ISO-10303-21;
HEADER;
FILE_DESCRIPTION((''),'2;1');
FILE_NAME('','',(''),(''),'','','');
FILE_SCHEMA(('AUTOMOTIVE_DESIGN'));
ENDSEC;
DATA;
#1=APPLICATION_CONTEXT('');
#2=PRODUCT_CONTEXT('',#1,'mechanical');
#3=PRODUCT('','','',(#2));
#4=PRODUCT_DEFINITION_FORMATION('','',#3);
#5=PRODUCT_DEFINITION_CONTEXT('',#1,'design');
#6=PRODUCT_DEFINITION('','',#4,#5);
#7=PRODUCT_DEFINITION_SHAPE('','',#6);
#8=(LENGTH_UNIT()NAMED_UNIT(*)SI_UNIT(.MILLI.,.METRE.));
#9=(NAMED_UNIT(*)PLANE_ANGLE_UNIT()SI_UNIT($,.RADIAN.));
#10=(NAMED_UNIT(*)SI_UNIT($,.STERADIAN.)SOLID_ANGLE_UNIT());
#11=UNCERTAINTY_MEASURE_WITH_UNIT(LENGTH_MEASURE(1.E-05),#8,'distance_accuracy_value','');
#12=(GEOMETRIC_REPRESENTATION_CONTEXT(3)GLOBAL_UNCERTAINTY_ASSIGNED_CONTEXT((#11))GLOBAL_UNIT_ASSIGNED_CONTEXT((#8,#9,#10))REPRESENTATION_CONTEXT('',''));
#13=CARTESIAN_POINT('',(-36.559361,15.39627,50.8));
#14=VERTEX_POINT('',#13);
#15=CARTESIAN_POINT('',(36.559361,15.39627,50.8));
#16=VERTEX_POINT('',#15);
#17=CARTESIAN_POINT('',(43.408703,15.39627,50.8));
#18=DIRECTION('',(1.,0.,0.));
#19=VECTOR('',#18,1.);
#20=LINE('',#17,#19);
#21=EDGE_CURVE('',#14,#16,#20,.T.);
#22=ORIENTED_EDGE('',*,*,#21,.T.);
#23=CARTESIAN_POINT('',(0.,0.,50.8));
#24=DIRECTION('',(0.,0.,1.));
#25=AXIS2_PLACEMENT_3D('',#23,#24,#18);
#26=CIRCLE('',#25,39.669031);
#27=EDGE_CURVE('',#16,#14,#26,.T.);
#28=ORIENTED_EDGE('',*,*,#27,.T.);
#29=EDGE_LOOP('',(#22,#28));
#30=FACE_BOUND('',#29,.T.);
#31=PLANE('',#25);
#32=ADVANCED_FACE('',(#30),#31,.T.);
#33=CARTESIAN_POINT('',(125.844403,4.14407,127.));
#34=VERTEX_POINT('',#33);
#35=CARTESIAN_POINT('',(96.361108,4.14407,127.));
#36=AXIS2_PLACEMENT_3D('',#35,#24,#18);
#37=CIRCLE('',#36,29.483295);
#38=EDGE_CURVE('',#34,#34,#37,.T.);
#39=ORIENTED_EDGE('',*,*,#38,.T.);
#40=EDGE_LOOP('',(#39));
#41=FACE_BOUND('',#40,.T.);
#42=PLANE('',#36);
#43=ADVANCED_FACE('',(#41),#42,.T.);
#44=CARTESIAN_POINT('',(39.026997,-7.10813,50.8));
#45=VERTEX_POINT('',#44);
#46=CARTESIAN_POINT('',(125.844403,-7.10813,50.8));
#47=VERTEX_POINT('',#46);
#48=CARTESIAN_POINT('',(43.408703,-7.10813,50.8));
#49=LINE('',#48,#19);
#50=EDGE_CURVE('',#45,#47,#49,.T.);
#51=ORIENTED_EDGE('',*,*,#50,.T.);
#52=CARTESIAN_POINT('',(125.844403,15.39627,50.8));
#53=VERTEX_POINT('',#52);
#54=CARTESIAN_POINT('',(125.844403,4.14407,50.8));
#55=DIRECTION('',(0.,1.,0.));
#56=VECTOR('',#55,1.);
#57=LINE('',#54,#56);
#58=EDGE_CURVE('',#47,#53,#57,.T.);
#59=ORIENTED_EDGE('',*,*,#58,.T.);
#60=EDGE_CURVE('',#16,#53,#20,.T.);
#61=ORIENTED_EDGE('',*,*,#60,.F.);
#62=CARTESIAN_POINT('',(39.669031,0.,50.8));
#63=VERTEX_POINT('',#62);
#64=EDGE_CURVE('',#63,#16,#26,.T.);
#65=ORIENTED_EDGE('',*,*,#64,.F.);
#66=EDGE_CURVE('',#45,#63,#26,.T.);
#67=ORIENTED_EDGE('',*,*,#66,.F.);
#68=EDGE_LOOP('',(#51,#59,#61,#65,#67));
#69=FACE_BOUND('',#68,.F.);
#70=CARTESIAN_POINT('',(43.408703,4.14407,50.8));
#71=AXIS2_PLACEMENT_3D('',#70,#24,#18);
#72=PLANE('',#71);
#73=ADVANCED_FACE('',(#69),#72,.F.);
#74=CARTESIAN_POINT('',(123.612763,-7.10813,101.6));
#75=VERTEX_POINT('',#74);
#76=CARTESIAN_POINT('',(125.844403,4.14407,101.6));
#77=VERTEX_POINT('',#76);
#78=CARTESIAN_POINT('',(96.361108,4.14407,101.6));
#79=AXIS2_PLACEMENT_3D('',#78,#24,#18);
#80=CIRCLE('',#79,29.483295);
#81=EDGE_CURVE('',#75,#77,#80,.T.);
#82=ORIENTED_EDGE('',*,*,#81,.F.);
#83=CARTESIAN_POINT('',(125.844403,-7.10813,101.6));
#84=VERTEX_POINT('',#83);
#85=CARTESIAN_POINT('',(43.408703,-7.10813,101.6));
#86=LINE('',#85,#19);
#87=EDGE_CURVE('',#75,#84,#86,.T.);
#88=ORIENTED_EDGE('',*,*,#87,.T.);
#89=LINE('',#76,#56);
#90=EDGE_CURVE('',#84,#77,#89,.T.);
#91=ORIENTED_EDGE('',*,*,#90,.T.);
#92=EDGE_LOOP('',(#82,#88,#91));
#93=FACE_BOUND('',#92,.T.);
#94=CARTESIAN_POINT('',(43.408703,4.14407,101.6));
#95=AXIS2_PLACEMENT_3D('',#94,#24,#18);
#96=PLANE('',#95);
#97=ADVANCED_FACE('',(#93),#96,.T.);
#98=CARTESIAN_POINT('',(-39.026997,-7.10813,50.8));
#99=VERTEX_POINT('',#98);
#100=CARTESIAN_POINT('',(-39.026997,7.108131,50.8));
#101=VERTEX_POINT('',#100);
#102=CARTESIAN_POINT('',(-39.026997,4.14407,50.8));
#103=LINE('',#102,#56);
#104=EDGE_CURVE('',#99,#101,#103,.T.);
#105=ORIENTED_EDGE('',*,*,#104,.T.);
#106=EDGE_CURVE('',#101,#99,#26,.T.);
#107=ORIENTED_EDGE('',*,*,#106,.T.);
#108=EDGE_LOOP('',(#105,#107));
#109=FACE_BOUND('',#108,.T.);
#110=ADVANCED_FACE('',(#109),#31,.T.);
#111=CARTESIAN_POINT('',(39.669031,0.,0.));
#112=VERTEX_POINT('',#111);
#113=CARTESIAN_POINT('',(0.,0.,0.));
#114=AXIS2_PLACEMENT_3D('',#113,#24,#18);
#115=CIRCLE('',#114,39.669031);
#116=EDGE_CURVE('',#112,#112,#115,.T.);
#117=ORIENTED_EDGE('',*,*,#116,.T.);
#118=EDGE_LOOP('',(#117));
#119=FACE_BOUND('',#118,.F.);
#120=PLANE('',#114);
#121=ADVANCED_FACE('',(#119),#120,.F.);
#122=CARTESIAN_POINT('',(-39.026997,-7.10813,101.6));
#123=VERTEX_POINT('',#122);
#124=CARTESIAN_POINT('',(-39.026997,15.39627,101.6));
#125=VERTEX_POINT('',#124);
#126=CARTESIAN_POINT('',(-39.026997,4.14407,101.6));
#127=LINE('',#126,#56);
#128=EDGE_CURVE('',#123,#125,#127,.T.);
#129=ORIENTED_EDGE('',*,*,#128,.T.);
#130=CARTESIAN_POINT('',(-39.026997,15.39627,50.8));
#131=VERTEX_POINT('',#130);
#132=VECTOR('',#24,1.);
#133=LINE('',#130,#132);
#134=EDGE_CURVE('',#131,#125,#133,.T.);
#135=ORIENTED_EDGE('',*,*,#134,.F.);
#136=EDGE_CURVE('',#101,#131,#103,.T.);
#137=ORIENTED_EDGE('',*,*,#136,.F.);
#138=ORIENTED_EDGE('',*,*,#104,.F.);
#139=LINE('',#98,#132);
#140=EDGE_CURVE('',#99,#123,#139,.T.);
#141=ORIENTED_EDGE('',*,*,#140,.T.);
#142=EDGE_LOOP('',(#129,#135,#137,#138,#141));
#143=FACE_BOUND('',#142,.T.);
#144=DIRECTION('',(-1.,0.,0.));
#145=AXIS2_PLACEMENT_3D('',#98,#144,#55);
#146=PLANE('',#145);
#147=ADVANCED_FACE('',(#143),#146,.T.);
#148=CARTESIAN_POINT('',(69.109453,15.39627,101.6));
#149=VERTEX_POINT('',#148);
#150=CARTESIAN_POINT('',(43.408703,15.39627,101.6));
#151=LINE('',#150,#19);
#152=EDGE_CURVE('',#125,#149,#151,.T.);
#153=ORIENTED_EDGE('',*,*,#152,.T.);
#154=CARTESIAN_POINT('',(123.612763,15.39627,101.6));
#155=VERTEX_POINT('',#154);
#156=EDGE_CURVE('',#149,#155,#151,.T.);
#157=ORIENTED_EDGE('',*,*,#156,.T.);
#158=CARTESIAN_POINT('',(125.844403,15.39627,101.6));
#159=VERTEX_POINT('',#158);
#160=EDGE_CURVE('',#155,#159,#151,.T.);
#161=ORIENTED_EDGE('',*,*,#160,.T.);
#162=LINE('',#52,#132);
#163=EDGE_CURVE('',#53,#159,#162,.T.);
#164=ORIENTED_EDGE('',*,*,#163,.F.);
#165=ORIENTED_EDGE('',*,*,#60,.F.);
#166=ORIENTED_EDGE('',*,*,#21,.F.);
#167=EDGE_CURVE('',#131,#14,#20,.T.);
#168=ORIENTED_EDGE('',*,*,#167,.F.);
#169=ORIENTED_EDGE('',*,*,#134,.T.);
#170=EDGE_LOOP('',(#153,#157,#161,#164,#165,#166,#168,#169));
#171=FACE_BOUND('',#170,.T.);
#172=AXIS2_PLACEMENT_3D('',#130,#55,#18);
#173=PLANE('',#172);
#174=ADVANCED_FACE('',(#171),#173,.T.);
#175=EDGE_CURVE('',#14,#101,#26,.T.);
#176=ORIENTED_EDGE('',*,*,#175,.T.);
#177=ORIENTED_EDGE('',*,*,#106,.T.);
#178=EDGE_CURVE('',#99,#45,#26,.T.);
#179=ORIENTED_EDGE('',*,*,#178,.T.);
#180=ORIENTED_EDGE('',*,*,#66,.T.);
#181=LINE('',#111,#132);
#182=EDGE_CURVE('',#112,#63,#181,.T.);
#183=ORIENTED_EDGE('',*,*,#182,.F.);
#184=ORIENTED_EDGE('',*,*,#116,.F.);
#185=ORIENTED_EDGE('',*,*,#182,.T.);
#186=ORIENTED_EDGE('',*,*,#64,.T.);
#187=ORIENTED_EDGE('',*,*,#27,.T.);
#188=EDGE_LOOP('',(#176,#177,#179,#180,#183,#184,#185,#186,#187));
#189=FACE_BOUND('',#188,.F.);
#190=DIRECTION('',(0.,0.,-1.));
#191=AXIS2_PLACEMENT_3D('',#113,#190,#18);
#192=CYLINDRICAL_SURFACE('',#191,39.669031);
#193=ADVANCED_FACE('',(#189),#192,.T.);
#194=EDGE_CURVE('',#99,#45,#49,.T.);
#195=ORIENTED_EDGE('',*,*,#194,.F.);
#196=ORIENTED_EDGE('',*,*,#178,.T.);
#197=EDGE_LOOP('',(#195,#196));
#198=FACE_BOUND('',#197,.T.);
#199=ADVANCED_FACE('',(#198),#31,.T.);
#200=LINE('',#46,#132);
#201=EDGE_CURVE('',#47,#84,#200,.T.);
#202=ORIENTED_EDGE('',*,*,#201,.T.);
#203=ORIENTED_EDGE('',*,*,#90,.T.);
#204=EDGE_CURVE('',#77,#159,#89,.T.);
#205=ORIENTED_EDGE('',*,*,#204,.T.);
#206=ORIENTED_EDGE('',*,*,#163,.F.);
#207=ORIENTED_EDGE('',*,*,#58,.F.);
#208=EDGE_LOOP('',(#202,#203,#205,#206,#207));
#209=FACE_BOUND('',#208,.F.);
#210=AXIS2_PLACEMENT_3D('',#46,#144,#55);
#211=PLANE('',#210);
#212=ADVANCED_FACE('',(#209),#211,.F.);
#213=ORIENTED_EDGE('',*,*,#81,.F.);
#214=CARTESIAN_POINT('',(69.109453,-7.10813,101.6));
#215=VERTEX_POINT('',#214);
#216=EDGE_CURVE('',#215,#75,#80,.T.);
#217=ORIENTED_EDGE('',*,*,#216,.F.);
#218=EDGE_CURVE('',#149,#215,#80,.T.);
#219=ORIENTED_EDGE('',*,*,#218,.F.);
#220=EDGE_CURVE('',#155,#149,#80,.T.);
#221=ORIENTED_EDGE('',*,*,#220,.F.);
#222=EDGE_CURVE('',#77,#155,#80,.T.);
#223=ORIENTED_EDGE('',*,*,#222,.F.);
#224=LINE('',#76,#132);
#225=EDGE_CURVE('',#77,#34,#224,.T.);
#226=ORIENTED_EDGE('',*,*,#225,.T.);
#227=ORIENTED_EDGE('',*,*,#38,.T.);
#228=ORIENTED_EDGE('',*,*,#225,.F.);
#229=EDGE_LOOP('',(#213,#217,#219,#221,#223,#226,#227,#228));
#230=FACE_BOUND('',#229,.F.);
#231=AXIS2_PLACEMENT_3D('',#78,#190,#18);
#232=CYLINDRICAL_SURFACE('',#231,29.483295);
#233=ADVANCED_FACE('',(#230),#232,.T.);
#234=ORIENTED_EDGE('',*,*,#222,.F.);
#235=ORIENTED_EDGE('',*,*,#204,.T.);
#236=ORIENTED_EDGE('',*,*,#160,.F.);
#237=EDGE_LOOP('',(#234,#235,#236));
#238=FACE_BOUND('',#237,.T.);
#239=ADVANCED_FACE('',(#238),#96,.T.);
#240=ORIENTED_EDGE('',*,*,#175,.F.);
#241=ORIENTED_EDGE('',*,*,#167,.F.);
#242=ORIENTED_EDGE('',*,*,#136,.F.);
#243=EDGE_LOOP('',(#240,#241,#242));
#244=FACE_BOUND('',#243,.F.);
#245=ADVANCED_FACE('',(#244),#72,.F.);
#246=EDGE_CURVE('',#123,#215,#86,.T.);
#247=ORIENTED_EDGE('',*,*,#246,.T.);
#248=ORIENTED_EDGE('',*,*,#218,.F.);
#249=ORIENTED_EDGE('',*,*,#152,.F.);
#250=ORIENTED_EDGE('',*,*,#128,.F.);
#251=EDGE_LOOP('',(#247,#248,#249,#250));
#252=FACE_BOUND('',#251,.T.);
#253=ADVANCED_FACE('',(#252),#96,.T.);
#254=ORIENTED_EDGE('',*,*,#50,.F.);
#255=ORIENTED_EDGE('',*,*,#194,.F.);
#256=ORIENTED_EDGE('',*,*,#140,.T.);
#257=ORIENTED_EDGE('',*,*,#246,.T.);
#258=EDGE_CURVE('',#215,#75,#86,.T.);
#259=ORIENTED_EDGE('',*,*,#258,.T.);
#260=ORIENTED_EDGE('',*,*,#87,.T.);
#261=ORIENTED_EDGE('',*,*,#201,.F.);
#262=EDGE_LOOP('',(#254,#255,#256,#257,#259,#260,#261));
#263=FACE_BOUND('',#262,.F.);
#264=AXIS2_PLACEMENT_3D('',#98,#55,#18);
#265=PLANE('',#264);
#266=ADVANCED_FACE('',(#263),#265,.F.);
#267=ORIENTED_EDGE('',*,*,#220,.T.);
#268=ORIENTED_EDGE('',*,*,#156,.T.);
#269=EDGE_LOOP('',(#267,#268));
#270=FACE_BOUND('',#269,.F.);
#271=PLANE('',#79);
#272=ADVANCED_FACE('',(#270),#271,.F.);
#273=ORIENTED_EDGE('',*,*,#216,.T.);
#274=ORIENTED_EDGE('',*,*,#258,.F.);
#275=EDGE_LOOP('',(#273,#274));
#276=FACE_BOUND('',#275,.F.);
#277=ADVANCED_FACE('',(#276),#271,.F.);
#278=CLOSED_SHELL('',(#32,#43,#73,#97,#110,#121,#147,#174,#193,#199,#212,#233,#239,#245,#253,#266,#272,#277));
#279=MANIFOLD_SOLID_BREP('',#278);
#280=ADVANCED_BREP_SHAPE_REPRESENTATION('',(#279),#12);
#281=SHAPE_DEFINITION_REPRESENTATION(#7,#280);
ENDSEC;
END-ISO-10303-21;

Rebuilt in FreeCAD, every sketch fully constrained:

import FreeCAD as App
import Part
import Sketcher

V = App.Vector
Q = App.Units.Quantity


def add_polygon(sketch, points):
    """Adds a closed chain of lines whose ends are joined by coincident constraints."""
    first, n = sketch.GeometryCount, len(points)
    for a, b in zip(points, points[1:] + points[:1]):
        sketch.addGeometry(Part.LineSegment(App.Vector(*a, 0), App.Vector(*b, 0)), False)
    for i in range(n):
        sketch.addConstraint(Sketcher.Constraint("Coincident", first + i, 2, first + (i + 1) % n, 1))

doc = App.newDocument("Part")
body = doc.addObject("PartDesign::Body", "Body")

# Sketch on XY plane
sketch1 = body.newObject("Sketcher::SketchObject", "Sketch")
sketch1.AttachmentSupport = (doc.getObject("XY_Plane"), [""])
sketch1.MapMode = "FlatFace"
sketch1.addGeometry(Part.Circle(V(0, 0, 0), V(0, 0, 1), 40), False)
sketch1.addConstraint([
    Sketcher.Constraint("Coincident", 0, 3, -1, 1),
    Sketcher.Constraint("Diameter", 0, Q("79.338062 mm")),
])
pad1 = body.newObject("PartDesign::Pad", "Pad")
pad1.Profile = sketch1
pad1.Length = Q("2 in")

# Sketch on XY plane
sketch2 = body.newObject("Sketcher::SketchObject", "Sketch001")
sketch2.AttachmentSupport = (doc.getObject("XY_Plane"), [""])
sketch2.MapMode = "FlatFace"
sketch2.AttachmentOffset = App.Placement(V(0, 0, 2 * 25.4), App.Rotation())
add_polygon(sketch2, [(-39, 15), (-39, -7), (126, -7), (126, 15)])  # lines 0-3
sketch2.addConstraint([
    Sketcher.Constraint("Vertical", 0),
    Sketcher.Constraint("Horizontal", 1),
    Sketcher.Constraint("Vertical", 2),
    Sketcher.Constraint("Horizontal", 3),
    Sketcher.Constraint("DistanceX", 1, 1, 1, 2, Q("6.491 in")),
    Sketcher.Constraint("DistanceY", 0, 2, 0, 1, Q("0.886 in")),
    Sketcher.Constraint("DistanceY", 0, 2, -1, 1, Q("7.10813 mm")),
    Sketcher.Constraint("DistanceX", 0, 2, -1, 1, Q("39.026997 mm")),
])
pad2 = body.newObject("PartDesign::Pad", "Pad001")
pad2.Profile = sketch2
pad2.Length = Q("2 in")

# Sketch on XY plane
sketch3 = body.newObject("Sketcher::SketchObject", "Sketch002")
sketch3.AttachmentSupport = (doc.getObject("XY_Plane"), [""])
sketch3.MapMode = "FlatFace"
sketch3.AttachmentOffset = App.Placement(V(0, 0, 4 * 25.4), App.Rotation())
sketch3.addGeometry(Part.Circle(V(96, 4, 0), V(0, 0, 1), 29), False)
sketch3.addConstraint([
    Sketcher.Constraint("Diameter", 0, Q("58.96659 mm")),
    Sketcher.Constraint("DistanceX", -1, 1, 0, 3, Q("96.361108 mm")),
    Sketcher.Constraint("DistanceY", -1, 1, 0, 3, Q("4.14407 mm")),
])
pad3 = body.newObject("PartDesign::Pad", "Pad002")
pad3.Profile = sketch3
pad3.Length = Q("1 in")

doc.recompute()
